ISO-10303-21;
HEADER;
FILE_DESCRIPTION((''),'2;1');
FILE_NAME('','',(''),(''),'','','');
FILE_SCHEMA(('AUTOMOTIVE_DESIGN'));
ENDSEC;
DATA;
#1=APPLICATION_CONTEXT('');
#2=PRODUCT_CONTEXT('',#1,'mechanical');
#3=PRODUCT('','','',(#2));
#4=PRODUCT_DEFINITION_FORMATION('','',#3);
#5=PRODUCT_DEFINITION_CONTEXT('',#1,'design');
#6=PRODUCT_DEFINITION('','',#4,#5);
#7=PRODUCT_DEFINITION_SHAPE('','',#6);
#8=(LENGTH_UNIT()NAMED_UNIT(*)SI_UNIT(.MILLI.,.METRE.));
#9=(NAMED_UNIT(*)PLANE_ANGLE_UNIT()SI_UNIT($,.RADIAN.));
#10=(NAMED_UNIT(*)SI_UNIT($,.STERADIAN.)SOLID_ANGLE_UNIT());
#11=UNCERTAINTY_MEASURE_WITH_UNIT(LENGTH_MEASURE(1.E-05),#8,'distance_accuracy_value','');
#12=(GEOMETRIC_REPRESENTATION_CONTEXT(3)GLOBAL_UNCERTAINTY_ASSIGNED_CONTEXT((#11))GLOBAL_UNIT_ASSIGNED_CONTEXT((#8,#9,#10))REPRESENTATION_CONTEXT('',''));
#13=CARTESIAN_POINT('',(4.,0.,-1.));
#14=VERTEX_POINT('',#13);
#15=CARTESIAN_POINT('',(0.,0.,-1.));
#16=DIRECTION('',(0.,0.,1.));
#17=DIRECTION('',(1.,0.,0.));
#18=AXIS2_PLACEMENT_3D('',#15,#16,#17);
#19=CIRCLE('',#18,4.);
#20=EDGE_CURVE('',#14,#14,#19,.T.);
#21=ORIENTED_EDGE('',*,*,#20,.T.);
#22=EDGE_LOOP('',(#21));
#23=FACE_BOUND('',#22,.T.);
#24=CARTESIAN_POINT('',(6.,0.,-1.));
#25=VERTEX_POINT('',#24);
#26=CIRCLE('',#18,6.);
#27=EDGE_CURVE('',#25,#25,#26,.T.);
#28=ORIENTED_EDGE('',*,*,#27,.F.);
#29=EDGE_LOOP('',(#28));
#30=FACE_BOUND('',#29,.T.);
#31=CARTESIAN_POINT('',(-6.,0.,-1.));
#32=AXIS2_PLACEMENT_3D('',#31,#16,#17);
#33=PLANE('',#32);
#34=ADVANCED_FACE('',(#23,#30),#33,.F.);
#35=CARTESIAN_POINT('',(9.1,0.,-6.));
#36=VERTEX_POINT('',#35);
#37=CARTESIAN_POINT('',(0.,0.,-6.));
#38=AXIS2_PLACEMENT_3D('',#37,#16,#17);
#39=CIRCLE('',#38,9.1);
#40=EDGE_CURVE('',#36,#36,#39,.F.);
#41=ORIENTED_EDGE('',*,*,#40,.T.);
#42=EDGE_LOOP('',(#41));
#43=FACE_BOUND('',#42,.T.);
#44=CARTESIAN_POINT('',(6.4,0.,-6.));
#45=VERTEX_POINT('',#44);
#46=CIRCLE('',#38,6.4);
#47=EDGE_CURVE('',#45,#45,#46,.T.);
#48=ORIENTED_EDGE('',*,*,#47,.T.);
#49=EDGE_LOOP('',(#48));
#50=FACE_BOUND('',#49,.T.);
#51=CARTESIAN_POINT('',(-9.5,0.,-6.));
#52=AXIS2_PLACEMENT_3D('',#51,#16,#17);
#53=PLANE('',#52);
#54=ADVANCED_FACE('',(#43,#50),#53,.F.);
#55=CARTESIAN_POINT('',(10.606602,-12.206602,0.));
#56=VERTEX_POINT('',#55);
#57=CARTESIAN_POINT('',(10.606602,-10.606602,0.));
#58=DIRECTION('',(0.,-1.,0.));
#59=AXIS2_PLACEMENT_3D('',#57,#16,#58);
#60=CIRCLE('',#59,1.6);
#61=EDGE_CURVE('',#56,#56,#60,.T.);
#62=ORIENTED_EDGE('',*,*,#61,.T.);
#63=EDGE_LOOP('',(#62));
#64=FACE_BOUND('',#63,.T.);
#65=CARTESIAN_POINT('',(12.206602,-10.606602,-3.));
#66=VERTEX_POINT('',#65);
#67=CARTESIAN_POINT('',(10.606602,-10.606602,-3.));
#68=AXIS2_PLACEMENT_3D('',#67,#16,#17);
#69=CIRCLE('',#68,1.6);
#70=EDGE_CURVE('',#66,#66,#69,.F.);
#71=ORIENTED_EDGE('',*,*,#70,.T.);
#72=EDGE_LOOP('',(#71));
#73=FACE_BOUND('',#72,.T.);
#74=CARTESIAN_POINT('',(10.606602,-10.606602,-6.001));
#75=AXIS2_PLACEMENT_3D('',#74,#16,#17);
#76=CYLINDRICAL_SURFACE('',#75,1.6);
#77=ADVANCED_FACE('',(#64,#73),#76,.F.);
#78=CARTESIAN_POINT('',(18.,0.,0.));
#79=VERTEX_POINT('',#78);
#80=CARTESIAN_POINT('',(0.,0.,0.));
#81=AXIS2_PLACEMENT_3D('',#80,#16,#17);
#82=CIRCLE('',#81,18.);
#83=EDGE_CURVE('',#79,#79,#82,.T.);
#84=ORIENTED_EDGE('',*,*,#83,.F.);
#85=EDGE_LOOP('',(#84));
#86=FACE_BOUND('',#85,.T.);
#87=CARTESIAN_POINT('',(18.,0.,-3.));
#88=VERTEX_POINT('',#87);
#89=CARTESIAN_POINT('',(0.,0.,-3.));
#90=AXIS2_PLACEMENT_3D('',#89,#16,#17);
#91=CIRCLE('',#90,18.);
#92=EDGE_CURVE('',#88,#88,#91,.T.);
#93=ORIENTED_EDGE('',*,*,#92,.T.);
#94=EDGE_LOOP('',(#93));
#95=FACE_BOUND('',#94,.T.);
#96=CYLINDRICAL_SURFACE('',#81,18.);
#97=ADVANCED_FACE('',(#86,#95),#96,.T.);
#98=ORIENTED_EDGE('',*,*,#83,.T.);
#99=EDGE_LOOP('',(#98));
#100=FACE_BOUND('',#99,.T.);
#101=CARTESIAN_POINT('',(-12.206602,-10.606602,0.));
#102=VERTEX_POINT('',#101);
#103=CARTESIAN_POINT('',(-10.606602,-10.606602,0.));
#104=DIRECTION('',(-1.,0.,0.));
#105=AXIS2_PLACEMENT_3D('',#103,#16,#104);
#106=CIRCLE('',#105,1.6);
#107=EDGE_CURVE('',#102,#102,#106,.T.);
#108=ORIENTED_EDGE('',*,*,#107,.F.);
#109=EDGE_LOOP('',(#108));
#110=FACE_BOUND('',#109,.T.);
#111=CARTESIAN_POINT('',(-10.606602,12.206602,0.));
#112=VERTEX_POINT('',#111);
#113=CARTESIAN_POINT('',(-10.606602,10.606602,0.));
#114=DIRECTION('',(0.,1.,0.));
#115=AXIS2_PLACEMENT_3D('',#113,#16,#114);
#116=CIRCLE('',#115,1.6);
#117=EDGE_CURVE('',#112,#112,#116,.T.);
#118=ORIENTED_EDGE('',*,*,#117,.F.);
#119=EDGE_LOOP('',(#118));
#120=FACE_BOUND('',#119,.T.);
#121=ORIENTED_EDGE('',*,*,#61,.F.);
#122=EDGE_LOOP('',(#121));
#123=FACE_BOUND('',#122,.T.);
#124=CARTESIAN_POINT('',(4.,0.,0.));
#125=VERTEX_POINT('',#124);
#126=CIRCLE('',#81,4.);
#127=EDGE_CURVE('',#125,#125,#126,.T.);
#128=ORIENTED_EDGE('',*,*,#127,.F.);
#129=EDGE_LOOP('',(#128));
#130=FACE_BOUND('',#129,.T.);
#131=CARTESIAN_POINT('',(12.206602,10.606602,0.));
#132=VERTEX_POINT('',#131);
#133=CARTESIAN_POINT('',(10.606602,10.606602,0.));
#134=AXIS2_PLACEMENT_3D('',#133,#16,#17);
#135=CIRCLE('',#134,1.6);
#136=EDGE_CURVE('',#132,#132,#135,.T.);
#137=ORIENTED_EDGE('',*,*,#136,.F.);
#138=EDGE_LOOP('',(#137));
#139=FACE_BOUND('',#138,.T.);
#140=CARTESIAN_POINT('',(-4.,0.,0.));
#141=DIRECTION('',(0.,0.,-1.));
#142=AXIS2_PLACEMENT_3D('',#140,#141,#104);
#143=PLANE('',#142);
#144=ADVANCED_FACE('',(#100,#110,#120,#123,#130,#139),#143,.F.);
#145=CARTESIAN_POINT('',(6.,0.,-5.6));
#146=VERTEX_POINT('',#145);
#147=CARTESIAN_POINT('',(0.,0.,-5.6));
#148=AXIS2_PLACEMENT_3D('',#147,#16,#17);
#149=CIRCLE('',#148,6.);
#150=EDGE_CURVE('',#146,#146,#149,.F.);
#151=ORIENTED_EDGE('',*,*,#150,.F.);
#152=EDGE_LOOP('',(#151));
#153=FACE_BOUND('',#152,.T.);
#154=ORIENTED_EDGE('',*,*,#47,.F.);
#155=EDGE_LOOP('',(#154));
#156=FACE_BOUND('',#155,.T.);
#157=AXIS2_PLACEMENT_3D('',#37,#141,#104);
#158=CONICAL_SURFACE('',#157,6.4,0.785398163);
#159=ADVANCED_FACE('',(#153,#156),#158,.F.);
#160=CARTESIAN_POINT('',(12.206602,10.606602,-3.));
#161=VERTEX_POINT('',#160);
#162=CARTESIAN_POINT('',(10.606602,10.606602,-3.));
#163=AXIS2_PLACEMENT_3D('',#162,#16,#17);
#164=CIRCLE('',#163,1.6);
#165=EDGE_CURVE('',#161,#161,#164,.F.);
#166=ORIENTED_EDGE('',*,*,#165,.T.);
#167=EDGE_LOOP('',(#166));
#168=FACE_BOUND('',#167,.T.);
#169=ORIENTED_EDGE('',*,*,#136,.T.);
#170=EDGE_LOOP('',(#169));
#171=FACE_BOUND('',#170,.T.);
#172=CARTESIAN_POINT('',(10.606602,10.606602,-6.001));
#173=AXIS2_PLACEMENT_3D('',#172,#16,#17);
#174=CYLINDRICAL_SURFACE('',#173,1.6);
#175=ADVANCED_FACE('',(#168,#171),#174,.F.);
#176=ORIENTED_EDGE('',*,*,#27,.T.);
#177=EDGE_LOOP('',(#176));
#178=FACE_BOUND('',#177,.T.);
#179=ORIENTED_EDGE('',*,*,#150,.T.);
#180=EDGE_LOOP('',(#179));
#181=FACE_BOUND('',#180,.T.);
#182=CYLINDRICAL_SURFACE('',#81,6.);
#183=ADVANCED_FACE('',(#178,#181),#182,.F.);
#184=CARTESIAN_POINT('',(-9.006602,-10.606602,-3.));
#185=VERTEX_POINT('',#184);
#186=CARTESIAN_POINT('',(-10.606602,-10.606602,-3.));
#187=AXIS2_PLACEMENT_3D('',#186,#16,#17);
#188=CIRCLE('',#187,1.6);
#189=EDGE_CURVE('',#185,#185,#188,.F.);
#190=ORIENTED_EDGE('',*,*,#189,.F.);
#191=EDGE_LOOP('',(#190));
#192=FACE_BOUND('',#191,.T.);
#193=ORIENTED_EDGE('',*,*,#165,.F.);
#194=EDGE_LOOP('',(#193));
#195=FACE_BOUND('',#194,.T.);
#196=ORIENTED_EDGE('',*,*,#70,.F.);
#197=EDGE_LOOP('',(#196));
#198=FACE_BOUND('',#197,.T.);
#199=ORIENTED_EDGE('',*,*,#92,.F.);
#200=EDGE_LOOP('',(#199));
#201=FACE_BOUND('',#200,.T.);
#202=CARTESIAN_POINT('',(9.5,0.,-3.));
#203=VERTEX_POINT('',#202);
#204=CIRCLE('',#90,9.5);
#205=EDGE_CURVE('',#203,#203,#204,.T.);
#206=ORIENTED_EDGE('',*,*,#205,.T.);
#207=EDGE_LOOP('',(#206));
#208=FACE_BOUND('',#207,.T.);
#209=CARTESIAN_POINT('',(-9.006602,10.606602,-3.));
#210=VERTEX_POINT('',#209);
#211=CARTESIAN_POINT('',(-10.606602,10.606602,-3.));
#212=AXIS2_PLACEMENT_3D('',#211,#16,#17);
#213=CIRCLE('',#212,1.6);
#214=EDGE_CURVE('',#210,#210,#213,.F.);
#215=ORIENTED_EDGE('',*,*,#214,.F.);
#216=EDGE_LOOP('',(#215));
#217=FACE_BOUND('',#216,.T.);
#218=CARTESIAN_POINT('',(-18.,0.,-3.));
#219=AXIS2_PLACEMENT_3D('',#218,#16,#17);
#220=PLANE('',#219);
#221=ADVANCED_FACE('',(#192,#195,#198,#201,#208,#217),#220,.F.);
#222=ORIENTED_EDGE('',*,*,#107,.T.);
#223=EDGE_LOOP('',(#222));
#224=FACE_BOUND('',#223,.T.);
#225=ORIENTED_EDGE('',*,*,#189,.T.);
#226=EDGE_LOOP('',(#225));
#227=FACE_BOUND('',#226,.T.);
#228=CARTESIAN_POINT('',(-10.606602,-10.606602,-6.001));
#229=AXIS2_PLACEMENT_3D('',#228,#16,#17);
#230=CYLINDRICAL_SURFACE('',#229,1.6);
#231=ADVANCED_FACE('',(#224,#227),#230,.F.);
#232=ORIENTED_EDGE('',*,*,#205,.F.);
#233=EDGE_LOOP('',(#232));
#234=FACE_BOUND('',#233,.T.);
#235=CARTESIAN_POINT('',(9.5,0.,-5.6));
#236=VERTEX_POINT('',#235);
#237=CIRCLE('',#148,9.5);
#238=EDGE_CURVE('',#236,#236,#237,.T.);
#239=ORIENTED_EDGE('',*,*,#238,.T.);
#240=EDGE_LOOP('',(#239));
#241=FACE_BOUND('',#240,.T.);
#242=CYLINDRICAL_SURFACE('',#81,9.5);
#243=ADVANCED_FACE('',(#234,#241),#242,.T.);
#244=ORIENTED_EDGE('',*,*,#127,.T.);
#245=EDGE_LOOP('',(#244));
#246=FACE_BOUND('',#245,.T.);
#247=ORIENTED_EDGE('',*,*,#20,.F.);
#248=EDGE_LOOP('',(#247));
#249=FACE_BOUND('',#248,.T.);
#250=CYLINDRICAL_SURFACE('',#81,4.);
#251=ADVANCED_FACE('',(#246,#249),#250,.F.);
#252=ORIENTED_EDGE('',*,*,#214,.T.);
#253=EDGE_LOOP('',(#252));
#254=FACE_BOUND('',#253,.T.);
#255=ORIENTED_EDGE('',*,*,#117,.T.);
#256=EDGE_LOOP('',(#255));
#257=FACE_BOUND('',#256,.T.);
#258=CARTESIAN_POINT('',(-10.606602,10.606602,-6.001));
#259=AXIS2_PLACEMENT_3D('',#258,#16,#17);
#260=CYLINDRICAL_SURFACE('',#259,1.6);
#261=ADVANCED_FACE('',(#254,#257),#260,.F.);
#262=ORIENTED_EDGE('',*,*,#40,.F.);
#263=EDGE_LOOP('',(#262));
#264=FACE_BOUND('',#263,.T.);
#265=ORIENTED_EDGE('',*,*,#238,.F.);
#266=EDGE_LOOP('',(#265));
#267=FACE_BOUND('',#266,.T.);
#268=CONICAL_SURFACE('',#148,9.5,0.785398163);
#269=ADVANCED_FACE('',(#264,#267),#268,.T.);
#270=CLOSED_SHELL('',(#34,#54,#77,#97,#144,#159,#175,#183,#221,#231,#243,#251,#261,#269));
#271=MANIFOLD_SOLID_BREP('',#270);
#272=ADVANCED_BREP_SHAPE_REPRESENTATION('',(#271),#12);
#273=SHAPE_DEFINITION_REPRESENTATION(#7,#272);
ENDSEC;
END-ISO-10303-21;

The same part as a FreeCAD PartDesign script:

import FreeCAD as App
import Part
import Sketcher
from FreeCAD import Vector
Q = App.Units.Quantity


def edges_at(feature, points):
    """Names of the edges that pass closest to the given points."""
    edges = feature.Shape.Edges
    near = lambda p: min(range(len(edges)), key=lambda i: edges[i].distToShape(Part.Vertex(*p))[0])
    return sorted({f"Edge{near(p) + 1}" for p in points})

doc = App.newDocument("Part")
body = doc.addObject("PartDesign::Body", "Body")

# Sketch on XZ plane
sketch1 = body.newObject("Sketcher::SketchObject", "Sketch")
sketch1.AttachmentSupport = (doc.getObject("XZ_Plane"), [""])
sketch1.MapMode = "FlatFace"
sketch1.addGeometry(Part.LineSegment(Vector(-18, 0, 0), Vector(-4, 0, 0)), False)
sketch1.addGeometry(Part.LineSegment(Vector(-4, 0, 0), Vector(-4, -1, 0)), False)
sketch1.addGeometry(Part.LineSegment(Vector(-4, -1, 0), Vector(-6, -1, 0)), False)
sketch1.addGeometry(Part.LineSegment(Vector(-6, -1, 0), Vector(-6, -6, 0)), False)
sketch1.addGeometry(Part.LineSegment(Vector(-6, -6, 0), Vector(-9.5, -6, 0)), False)
sketch1.addGeometry(Part.LineSegment(Vector(-9.5, -6, 0), Vector(-9.5, -3, 0)), False)
sketch1.addGeometry(Part.LineSegment(Vector(-9.5, -3, 0), Vector(-18, -3, 0)), False)
sketch1.addGeometry(Part.LineSegment(Vector(-18, -3, 0), Vector(-18, 0, 0)), False)
sketch1.addConstraint(Sketcher.Constraint("Coincident", 0, 2, 1, 1))
sketch1.addConstraint(Sketcher.Constraint("Coincident", 1, 2, 2, 1))
sketch1.addConstraint(Sketcher.Constraint("Coincident", 2, 2, 3, 1))
sketch1.addConstraint(Sketcher.Constraint("Coincident", 3, 2, 4, 1))
sketch1.addConstraint(Sketcher.Constraint("Coincident", 4, 2, 5, 1))
sketch1.addConstraint(Sketcher.Constraint("Coincident", 5, 2, 6, 1))
sketch1.addConstraint(Sketcher.Constraint("Coincident", 6, 2, 7, 1))
sketch1.addConstraint(Sketcher.Constraint("Coincident", 7, 2, 0, 1))
sketch1.addConstraint(Sketcher.Constraint("Horizontal", 0))
sketch1.addConstraint(Sketcher.Constraint("Vertical", 1))
sketch1.addConstraint(Sketcher.Constraint("Horizontal", 2))
sketch1.addConstraint(Sketcher.Constraint("Vertical", 3))
sketch1.addConstraint(Sketcher.Constraint("Horizontal", 4))
sketch1.addConstraint(Sketcher.Constraint("Vertical", 5))
sketch1.addConstraint(Sketcher.Constraint("Horizontal", 6))
sketch1.addConstraint(Sketcher.Constraint("Vertical", 7))
sketch1.addConstraint(Sketcher.Constraint("PointOnObject", 0, 2, -1))
sketch1.addConstraint(Sketcher.Constraint("Equal", 5, 7))
sketch1.addConstraint(Sketcher.Constraint("DistanceX", 0, 1, 0, 2, Q("14 mm")))
sketch1.addConstraint(Sketcher.Constraint("DistanceX", 2, 2, 2, 1, Q("2 mm")))
sketch1.addConstraint(Sketcher.Constraint("DistanceY", 1, 2, 1, 1, Q("1 mm")))
sketch1.addConstraint(Sketcher.Constraint("DistanceY", 3, 2, 3, 1, Q("5 mm")))
sketch1.addConstraint(Sketcher.Constraint("DistanceX", 4, 2, 4, 1, Q("3.5 mm")))
sketch1.addConstraint(Sketcher.Constraint("DistanceX", 0, 2, -1, 1, Q("4 mm")))
revolution = body.newObject("PartDesign::Revolution", "Revolution")
revolution.Profile = sketch1
revolution.ReferenceAxis = (sketch1, ["V_Axis"])
revolution.Angle = 360

# Sketch on XY plane
sketch2 = body.newObject("Sketcher::SketchObject", "Sketch001")
sketch2.AttachmentSupport = (doc.getObject("XY_Plane"), [""])
sketch2.MapMode = "FlatFace"
sketch2.addGeometry(Part.Circle(Vector(10.6, 10.6, 0), Vector(0, 0, 1), 1.6), False)
sketch2.addConstraint(Sketcher.Constraint("Diameter", 0, Q("3.2 mm")))
sketch2.addConstraint(Sketcher.Constraint("DistanceX", -1, 1, 0, 3, Q("10.606602 mm")))
sketch2.addConstraint(Sketcher.Constraint("DistanceY", -1, 1, 0, 3, Q("10.606602 mm")))
pocket1 = body.newObject("PartDesign::Pocket", "Pocket")
pocket1.Profile = sketch2
pocket1.Length = 3
doc.recompute()

polarpattern = body.newObject("PartDesign::PolarPattern", "PolarPattern")
polarpattern.Originals = [pocket1]
polarpattern.Axis = (doc.getObject("Z_Axis"), [""])
polarpattern.Angle = 360
polarpattern.Occurrences = 4
body.Tip = polarpattern
doc.recompute()

chamfer = body.newObject("PartDesign::Chamfer", "Chamfer")
chamfer.Base = (polarpattern, edges_at(polarpattern, [(6, 0, -6), (9.5, 0, -6)]))
chamfer.Size = 0.4

doc.recompute()
